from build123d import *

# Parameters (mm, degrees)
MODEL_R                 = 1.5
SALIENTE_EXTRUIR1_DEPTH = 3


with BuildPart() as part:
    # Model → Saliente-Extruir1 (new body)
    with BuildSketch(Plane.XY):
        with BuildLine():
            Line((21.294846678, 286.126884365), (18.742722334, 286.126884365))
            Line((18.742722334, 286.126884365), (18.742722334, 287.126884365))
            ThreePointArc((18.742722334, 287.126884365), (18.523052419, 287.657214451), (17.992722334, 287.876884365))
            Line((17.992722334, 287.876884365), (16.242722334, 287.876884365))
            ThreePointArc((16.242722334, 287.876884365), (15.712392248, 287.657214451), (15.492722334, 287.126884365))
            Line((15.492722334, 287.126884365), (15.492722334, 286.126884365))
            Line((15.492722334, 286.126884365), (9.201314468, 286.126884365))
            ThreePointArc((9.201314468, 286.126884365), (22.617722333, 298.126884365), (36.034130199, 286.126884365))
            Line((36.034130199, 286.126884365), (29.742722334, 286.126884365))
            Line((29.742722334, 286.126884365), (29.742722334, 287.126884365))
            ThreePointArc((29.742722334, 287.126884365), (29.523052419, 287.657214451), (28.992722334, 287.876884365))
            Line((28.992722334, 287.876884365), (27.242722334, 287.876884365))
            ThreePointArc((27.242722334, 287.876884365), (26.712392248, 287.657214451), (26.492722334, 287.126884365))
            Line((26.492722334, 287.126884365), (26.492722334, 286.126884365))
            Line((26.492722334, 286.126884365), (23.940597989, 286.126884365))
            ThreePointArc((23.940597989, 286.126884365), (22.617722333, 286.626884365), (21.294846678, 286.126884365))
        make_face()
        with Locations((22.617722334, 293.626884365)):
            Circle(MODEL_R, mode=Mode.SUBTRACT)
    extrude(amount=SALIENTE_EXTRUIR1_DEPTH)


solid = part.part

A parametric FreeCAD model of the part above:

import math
import FreeCAD as App
import Part
import Sketcher

V = App.Vector
Q = App.Units.Quantity

doc = App.newDocument("Part")
body = doc.addObject("PartDesign::Body", "Body")

# Sketch on XY plane
sketch1 = doc.addObject("Sketcher::SketchObject", "Sketch")
body.addObject(sketch1)
sketch1.AttachmentSupport = (doc.XY_Plane, [""])
sketch1.MapMode = "FlatFace"
sketch1.addGeometry(Part.LineSegment(V(18.742722, 286.126884, 0), V(21.294847, 286.126884, 0)), False)
sketch1.addGeometry(Part.ArcOfCircle(Part.Circle(V(22.617722, 284.626884, 0), V(0, 0, 1), 2), math.radians(48.590378), math.radians(131.409622)), False)
sketch1.addGeometry(Part.LineSegment(V(23.940598, 286.126884, 0), V(26.492722, 286.126884, 0)), False)
sketch1.addGeometry(Part.LineSegment(V(26.492722, 286.126884, 0), V(26.492722, 287.126884, 0)), False)
sketch1.addGeometry(Part.ArcOfCircle(Part.Circle(V(27.242722, 287.126884, 0), V(0, 0, 1), 0.75), math.radians(90), math.radians(180)), False)
sketch1.addGeometry(Part.LineSegment(V(27.242722, 287.876884, 0), V(28.992722, 287.876884, 0)), False)
sketch1.addGeometry(Part.ArcOfCircle(Part.Circle(V(28.992722, 287.126884, 0), V(0, 0, 1), 0.75), math.radians(0), math.radians(90)), False)
sketch1.addGeometry(Part.LineSegment(V(29.742722, 287.126884, 0), V(29.742722, 286.126884, 0)), False)
sketch1.addGeometry(Part.LineSegment(V(29.742722, 286.126884, 0), V(36.03413, 286.126884, 0)), False)
sketch1.addGeometry(Part.ArcOfCircle(Part.Circle(V(22.617722, 284.626884, 0), V(0, 0, 1), 13.5), math.radians(6.37937), math.radians(173.62063)), False)
sketch1.addGeometry(Part.LineSegment(V(9.201314, 286.126884, 0), V(15.492722, 286.126884, 0)), False)
sketch1.addGeometry(Part.LineSegment(V(15.492722, 286.126884, 0), V(15.492722, 287.126884, 0)), False)
sketch1.addGeometry(Part.ArcOfCircle(Part.Circle(V(16.242722, 287.126884, 0), V(0, 0, 1), 0.75), math.radians(90), math.radians(180)), False)
sketch1.addGeometry(Part.LineSegment(V(16.242722, 287.876884, 0), V(17.992722, 287.876884, 0)), False)
sketch1.addGeometry(Part.ArcOfCircle(Part.Circle(V(17.992722, 287.126884, 0), V(0, 0, 1), 0.75), math.radians(0), math.radians(90)), False)
sketch1.addGeometry(Part.LineSegment(V(18.742722, 287.126884, 0), V(18.742722, 286.126884, 0)), False)
sketch1.addGeometry(Part.Circle(V(22.617722, 293.626884, 0), V(0, 0, 1), 1.5), False)
sketch1.addConstraint(Sketcher.Constraint("Coincident", 0, 2, 1, 2))
sketch1.addConstraint(Sketcher.Constraint("Coincident", 1, 1, 2, 1))
sketch1.addConstraint(Sketcher.Constraint("Coincident", 2, 2, 3, 1))
sketch1.addConstraint(Sketcher.Constraint("Tangent", 3, 2, 4, 2))
sketch1.addConstraint(Sketcher.Constraint("Tangent", 4, 1, 5, 1))
sketch1.addConstraint(Sketcher.Constraint("Tangent", 5, 2, 6, 2))
sketch1.addConstraint(Sketcher.Constraint("Tangent", 6, 1, 7, 1))
sketch1.addConstraint(Sketcher.Constraint("Coincident", 7, 2, 8, 1))
sketch1.addConstraint(Sketcher.Constraint("Coincident", 8, 2, 9, 1))
sketch1.addConstraint(Sketcher.Constraint("Coincident", 9, 2, 10, 1))
sketch1.addConstraint(Sketcher.Constraint("Coincident", 10, 2, 11, 1))
sketch1.addConstraint(Sketcher.Constraint("Tangent", 11, 2, 12, 2))
sketch1.addConstraint(Sketcher.Constraint("Tangent", 12, 1, 13, 1))
sketch1.addConstraint(Sketcher.Constraint("Tangent", 13, 2, 14, 2))
sketch1.addConstraint(Sketcher.Constraint("Tangent", 14, 1, 15, 1))
sketch1.addConstraint(Sketcher.Constraint("Coincident", 15, 2, 0, 1))
sketch1.addConstraint(Sketcher.Constraint("Horizontal", 0))
sketch1.addConstraint(Sketcher.Constraint("Horizontal", 2))
sketch1.addConstraint(Sketcher.Constraint("Vertical", 3))
sketch1.addConstraint(Sketcher.Constraint("Horizontal", 5))
sketch1.addConstraint(Sketcher.Constraint("Vertical", 7))
sketch1.addConstraint(Sketcher.Constraint("Horizontal", 8))
sketch1.addConstraint(Sketcher.Constraint("Horizontal", 10))
sketch1.addConstraint(Sketcher.Constraint("Vertical", 11))
sketch1.addConstraint(Sketcher.Constraint("Horizontal", 13))
sketch1.addConstraint(Sketcher.Constraint("Vertical", 15))
sketch1.addConstraint(Sketcher.Constraint("Coincident", 9, 3, 1, 3))
sketch1.addConstraint(Sketcher.Constraint("Equal", 4, 6))
sketch1.addConstraint(Sketcher.Constraint("Equal", 6, 12))
sketch1.addConstraint(Sketcher.Constraint("Equal", 12, 14))
sketch1.addConstraint(Sketcher.Constraint("Horizontal", 6, 3, 12, 3))
sketch1.addConstraint(Sketcher.Constraint("Horizontal", 0, 2, 1, 1))
sketch1.addConstraint(Sketcher.Constraint("Horizontal", 2, 2, 7, 2))
sketch1.addConstraint(Sketcher.Constraint("Horizontal", 8, 2, 9, 2))
sketch1.addConstraint(Sketcher.Constraint("Vertical", 9, 3, 16, 3))
sketch1.addConstraint(Sketcher.Constraint("Equal", 0, 2))
sketch1.addConstraint(Sketcher.Constraint("Equal", 8, 10))
sketch1.addConstraint(Sketcher.Constraint("Diameter", 16, Q("3 mm")))
sketch1.addConstraint(Sketcher.Constraint("Radius", 1, Q("2 mm")))
sketch1.addConstraint(Sketcher.Constraint("Radius", 9, Q("13.5 mm")))
sketch1.addConstraint(Sketcher.Constraint("DistanceY", 3, 1, 3, 2, Q("1 mm")))
sketch1.addConstraint(Sketcher.Constraint("Radius", 4, Q("0.75 mm")))
sketch1.addConstraint(Sketcher.Constraint("DistanceX", 12, 3, 4, 3, Q("11 mm")))
sketch1.addConstraint(Sketcher.Constraint("DistanceY", 1, 3, 16, 3, Q("9 mm")))
sketch1.addConstraint(Sketcher.Constraint("DistanceX", 5, 1, 5, 2, Q("1.75 mm")))
sketch1.addConstraint(Sketcher.Constraint("DistanceY", 1, 3, 4, 3, Q("2.5 mm")))
sketch1.addConstraint(Sketcher.Constraint("DistanceX", -1, 1, 8, 2, Q("36.03413 mm")))
sketch1.addConstraint(Sketcher.Constraint("DistanceY", -1, 1, 1, 3, Q("284.626884 mm")))
pad1 = doc.addObject("PartDesign::Pad", "Pad")
body.addObject(pad1)
pad1.Profile = sketch1
pad1.Length = 3

doc.recompute()
